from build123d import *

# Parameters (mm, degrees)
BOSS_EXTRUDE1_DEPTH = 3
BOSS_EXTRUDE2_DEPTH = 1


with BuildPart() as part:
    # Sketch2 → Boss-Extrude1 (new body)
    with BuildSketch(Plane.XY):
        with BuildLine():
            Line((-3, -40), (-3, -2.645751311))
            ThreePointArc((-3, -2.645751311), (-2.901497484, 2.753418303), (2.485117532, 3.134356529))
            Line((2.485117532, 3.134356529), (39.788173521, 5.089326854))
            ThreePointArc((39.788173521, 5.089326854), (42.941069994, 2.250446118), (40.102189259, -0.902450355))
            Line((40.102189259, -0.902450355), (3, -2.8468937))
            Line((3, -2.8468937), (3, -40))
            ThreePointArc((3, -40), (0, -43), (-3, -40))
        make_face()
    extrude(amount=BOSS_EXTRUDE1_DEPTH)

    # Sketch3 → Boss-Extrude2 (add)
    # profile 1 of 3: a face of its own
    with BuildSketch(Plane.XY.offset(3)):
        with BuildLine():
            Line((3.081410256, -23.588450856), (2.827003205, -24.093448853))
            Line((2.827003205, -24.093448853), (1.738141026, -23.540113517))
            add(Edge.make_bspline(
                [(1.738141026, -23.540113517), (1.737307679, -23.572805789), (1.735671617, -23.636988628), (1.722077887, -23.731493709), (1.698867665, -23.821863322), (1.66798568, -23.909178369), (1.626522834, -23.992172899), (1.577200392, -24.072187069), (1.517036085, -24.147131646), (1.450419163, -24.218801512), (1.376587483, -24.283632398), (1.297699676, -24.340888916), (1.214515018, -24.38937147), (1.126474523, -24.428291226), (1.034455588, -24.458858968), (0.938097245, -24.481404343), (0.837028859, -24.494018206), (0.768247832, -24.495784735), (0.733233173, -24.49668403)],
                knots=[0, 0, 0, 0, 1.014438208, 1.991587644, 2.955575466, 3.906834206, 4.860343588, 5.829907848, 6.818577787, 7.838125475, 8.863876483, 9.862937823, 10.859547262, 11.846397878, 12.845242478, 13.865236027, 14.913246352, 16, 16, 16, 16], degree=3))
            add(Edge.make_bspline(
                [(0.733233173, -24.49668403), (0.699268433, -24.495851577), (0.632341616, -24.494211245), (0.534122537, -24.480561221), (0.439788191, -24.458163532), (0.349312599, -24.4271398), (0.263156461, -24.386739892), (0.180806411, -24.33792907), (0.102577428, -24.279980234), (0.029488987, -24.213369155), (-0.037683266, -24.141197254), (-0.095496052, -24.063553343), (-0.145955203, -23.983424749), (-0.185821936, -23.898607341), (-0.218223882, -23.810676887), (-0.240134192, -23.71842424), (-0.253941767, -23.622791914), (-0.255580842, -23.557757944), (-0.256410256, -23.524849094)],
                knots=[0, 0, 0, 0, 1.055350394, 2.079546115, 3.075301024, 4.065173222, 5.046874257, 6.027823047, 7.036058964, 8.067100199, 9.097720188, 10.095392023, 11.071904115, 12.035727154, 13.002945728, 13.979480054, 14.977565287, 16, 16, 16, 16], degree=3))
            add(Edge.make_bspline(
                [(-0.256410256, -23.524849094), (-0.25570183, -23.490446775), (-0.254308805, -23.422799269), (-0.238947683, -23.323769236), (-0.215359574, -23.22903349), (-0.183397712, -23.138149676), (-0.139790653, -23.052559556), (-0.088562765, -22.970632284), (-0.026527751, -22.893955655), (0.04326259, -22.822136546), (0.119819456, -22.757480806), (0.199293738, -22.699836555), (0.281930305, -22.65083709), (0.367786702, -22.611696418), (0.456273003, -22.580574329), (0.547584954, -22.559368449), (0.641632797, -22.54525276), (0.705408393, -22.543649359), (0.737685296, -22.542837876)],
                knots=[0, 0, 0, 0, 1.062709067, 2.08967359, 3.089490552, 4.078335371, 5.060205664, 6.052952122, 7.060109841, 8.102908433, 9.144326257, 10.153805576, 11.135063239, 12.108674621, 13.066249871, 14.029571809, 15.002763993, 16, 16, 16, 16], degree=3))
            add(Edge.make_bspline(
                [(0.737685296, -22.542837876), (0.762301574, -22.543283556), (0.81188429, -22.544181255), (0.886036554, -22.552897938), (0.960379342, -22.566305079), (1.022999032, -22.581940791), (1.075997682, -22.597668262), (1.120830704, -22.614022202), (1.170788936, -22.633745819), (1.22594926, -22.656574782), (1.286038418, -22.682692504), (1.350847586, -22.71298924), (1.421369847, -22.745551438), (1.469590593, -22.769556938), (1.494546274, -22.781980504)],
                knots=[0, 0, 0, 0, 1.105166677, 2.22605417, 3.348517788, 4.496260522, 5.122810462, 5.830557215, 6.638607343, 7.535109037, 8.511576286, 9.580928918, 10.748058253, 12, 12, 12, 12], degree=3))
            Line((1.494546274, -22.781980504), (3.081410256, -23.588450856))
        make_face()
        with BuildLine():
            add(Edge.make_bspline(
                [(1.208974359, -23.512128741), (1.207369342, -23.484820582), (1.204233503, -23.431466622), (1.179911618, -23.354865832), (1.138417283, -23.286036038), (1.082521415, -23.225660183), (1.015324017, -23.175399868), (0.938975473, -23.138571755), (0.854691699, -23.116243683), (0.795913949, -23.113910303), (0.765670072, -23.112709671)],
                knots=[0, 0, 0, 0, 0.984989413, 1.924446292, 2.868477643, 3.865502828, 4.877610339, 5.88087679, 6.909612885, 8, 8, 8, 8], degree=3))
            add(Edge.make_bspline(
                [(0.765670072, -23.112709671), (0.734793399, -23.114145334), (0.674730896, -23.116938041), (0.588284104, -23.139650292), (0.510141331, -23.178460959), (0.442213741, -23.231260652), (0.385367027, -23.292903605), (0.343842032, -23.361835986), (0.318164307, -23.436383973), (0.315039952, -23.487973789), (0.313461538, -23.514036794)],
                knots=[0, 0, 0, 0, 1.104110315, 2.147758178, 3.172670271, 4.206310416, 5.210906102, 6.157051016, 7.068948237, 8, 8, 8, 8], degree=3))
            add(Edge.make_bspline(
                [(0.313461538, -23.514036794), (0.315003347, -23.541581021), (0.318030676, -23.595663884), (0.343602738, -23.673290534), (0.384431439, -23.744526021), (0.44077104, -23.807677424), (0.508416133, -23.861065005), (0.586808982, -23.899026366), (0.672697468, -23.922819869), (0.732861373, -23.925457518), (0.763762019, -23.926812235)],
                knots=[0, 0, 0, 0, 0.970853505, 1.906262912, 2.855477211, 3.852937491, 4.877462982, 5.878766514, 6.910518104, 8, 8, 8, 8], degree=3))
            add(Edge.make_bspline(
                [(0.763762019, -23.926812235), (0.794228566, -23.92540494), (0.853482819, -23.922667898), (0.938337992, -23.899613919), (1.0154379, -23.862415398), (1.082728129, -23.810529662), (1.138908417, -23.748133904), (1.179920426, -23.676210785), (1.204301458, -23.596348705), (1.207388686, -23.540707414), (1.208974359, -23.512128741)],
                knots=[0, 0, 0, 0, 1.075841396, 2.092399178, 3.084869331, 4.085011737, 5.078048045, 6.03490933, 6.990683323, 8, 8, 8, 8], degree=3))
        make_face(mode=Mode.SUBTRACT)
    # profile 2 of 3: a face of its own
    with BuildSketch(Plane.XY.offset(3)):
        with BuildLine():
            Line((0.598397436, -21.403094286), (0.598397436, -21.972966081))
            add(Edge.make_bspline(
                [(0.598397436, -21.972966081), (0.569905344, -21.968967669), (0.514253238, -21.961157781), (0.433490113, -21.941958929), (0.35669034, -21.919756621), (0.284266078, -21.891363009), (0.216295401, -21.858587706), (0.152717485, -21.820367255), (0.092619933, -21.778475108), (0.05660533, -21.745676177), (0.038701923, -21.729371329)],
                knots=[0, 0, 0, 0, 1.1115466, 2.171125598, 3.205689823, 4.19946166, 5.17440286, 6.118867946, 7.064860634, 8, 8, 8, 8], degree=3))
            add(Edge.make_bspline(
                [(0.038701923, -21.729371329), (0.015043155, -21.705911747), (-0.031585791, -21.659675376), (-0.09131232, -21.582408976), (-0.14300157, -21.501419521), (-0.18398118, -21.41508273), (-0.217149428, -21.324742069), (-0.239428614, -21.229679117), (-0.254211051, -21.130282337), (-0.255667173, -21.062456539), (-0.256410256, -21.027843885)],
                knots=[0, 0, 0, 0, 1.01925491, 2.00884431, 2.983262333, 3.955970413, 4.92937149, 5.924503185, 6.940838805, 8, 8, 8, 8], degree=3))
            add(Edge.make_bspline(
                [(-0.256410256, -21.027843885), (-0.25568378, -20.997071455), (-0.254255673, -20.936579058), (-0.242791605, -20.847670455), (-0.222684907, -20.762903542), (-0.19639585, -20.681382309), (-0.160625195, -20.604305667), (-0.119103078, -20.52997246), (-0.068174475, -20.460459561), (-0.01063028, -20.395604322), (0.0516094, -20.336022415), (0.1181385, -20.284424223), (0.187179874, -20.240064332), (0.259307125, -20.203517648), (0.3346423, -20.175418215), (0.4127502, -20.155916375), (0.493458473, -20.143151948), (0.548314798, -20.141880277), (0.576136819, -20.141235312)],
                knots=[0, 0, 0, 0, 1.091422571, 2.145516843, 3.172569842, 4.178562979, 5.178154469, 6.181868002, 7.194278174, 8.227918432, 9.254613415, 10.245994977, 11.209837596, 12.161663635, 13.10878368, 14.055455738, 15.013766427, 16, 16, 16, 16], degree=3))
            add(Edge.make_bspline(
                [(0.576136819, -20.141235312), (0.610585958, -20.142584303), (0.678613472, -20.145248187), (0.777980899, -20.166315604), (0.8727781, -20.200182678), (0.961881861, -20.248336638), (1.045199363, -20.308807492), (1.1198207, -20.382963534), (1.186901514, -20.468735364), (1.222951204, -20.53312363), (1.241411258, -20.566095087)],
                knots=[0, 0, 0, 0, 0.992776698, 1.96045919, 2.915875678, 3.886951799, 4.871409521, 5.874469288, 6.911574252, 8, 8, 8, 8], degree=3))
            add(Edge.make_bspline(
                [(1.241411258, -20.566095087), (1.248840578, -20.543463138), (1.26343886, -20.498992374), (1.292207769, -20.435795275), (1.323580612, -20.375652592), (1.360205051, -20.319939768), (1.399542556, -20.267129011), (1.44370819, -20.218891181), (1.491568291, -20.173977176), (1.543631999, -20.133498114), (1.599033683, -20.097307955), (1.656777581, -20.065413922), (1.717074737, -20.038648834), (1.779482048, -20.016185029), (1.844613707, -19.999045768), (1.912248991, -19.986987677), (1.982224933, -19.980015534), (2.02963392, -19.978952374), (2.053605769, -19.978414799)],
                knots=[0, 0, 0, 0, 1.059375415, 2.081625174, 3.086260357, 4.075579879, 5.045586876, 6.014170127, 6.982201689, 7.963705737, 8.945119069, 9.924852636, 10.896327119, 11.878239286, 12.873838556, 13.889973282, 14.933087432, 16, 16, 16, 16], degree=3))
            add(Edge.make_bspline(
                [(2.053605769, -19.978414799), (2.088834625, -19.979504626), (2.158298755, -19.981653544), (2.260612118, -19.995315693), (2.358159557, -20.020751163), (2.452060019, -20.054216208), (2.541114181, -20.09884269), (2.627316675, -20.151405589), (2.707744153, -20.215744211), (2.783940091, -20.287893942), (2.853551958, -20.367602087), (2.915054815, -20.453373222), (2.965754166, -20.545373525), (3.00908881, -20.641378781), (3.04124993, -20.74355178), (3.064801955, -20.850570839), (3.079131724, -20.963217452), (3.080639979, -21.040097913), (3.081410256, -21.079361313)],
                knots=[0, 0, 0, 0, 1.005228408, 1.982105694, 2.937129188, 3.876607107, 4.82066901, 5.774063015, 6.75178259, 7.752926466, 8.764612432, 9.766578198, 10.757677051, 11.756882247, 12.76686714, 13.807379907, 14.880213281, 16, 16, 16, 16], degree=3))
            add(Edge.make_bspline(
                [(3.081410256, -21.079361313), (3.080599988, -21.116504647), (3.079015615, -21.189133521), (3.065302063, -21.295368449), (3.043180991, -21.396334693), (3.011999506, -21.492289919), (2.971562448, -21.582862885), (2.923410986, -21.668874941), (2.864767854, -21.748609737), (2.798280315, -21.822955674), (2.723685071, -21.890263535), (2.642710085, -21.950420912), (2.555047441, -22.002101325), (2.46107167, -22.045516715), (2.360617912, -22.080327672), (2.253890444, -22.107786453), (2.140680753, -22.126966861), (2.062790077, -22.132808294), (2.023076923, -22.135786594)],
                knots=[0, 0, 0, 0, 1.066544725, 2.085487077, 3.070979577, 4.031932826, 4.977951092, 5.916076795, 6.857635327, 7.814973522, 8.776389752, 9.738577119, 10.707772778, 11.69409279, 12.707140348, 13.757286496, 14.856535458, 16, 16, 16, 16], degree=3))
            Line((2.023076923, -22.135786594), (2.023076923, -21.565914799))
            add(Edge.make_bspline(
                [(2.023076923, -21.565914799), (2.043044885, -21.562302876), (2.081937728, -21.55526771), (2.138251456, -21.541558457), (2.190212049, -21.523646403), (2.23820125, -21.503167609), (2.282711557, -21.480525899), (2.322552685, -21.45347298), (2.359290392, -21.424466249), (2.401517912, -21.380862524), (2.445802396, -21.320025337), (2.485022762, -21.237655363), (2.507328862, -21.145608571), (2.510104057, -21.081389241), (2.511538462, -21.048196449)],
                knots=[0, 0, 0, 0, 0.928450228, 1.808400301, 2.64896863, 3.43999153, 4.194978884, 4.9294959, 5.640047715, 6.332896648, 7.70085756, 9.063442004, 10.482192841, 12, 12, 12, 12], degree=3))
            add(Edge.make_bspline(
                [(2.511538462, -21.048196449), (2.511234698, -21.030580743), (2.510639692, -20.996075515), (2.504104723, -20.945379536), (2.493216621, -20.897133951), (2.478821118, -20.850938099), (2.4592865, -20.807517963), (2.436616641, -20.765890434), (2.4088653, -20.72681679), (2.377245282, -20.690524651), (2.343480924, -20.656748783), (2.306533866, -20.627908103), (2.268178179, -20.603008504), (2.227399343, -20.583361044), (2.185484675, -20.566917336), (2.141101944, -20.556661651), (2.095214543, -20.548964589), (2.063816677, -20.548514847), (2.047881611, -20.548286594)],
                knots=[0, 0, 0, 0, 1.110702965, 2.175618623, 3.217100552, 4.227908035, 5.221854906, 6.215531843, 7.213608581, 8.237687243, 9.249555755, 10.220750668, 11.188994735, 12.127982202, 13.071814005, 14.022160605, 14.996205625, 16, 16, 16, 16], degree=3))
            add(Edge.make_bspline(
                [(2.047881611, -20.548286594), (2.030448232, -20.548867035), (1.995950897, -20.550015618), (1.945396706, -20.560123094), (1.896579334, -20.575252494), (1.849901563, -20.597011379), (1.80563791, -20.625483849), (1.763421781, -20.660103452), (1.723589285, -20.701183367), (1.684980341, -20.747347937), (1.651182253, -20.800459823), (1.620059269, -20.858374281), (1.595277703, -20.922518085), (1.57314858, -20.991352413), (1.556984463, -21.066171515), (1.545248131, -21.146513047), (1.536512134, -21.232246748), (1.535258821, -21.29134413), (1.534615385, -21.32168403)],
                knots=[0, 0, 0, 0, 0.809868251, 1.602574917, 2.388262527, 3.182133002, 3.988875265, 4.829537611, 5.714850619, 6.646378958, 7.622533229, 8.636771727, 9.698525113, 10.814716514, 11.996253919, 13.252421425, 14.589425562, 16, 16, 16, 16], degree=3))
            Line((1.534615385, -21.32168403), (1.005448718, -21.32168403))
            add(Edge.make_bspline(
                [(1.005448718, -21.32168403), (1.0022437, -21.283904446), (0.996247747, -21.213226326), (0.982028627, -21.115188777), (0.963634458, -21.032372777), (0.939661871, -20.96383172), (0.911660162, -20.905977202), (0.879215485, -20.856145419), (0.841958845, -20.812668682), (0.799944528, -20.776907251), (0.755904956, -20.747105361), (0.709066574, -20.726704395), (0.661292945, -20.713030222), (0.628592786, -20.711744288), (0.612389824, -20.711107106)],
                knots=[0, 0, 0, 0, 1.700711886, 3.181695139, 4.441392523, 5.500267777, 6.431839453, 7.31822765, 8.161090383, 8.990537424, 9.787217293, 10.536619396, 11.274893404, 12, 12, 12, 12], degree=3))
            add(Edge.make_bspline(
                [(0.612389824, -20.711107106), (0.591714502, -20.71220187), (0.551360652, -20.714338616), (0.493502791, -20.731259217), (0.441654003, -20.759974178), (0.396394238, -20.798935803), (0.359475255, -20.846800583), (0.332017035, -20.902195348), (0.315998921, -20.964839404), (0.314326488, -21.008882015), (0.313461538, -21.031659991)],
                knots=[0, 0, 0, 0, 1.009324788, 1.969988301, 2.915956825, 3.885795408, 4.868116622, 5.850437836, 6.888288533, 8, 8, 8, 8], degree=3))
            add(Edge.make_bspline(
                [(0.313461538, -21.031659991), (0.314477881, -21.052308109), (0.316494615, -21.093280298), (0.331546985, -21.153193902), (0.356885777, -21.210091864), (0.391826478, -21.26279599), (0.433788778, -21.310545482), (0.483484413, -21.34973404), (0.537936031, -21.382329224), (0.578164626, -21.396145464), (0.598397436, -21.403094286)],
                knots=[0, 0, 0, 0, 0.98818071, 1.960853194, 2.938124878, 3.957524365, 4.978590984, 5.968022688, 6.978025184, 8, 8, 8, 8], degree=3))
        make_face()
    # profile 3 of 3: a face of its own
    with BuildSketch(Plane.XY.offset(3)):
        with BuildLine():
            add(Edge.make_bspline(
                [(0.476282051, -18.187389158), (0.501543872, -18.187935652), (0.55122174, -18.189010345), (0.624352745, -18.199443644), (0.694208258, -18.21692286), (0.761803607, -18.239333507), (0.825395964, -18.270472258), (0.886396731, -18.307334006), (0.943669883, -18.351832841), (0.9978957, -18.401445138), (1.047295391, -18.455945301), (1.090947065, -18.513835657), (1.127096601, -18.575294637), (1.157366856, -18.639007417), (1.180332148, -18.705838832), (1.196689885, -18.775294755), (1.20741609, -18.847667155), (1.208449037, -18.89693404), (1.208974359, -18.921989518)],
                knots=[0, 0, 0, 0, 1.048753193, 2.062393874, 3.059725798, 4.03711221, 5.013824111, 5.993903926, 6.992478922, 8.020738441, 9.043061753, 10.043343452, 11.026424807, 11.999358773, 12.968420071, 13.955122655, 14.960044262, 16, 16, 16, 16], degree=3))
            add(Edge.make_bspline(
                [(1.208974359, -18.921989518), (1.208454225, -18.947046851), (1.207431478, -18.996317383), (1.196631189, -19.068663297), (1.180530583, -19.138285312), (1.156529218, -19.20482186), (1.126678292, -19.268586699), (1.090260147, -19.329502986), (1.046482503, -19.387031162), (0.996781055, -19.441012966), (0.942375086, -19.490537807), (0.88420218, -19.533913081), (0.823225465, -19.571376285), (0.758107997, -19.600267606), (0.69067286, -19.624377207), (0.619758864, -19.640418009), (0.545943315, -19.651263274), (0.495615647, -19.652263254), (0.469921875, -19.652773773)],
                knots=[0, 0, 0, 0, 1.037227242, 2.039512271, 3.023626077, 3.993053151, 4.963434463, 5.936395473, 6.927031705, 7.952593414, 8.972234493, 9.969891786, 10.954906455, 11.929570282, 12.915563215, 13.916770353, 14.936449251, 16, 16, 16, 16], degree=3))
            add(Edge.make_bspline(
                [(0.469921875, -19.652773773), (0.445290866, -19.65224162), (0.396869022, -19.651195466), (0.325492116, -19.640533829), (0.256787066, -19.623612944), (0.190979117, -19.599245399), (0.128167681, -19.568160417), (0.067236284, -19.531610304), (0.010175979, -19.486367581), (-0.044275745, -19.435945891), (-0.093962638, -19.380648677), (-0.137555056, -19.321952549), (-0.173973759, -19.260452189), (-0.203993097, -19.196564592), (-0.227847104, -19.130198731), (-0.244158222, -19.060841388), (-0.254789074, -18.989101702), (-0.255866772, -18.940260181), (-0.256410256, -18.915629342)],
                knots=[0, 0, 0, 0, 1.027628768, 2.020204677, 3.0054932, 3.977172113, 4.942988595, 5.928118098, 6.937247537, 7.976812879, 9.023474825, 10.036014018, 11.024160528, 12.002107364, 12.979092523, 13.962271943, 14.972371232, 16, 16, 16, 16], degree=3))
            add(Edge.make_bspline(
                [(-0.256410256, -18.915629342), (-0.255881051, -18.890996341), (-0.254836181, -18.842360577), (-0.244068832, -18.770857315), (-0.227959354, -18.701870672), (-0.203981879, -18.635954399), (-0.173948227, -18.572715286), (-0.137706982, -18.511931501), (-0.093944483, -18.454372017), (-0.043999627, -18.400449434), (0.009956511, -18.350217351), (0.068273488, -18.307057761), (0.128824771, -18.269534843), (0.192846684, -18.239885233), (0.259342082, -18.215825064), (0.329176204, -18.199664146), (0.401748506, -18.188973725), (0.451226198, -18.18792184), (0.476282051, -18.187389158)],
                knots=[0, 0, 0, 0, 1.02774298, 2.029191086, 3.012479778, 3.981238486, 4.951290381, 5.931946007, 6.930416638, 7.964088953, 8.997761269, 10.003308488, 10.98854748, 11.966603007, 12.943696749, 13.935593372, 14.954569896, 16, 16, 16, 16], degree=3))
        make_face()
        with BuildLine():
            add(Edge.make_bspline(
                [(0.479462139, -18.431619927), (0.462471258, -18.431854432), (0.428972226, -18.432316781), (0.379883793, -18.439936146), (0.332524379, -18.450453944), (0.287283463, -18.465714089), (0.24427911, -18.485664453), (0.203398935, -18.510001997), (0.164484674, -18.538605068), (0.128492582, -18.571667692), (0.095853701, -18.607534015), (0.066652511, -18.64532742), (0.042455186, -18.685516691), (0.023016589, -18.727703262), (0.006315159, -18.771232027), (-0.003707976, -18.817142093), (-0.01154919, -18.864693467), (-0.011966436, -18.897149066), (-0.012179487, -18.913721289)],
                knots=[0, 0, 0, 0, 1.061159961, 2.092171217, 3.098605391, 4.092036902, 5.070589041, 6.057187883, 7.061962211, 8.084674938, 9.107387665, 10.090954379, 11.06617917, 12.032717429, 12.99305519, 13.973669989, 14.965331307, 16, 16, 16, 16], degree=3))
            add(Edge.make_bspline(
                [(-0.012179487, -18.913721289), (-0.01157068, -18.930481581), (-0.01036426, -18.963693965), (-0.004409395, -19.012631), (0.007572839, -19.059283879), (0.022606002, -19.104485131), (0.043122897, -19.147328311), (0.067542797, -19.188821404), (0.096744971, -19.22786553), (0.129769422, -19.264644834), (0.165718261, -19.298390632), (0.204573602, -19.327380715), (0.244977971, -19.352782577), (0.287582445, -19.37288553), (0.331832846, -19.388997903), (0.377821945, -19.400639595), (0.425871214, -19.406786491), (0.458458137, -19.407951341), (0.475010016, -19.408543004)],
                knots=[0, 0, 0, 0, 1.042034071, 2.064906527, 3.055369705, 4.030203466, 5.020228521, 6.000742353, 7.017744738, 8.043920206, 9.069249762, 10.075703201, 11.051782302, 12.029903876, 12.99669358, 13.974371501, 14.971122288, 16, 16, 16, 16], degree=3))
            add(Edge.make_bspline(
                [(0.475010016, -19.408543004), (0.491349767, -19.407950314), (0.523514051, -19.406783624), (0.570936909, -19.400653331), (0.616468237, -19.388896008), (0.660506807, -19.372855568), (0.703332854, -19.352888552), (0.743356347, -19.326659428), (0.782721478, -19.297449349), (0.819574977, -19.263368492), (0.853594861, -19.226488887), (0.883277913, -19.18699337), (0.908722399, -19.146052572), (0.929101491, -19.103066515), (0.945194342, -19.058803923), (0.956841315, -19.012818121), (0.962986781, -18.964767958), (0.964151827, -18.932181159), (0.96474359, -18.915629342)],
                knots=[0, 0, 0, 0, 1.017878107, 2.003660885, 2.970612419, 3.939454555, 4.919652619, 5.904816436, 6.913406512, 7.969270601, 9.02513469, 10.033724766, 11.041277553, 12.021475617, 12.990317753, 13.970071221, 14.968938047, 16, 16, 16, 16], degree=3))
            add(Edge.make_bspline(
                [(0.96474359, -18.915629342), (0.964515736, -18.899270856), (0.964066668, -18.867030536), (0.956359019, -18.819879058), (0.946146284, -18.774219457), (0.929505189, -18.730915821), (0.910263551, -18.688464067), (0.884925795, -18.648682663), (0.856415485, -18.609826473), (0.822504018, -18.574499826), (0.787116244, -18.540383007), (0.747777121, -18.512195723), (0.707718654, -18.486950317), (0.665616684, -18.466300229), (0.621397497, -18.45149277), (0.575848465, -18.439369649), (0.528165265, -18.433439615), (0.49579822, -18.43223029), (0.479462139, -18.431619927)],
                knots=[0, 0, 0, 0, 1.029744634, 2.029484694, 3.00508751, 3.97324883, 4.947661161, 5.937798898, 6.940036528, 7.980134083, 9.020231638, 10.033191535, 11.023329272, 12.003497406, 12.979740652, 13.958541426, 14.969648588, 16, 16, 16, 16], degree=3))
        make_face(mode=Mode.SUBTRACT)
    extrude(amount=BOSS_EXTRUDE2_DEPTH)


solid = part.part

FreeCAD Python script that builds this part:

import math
import FreeCAD as App
import Part
import Sketcher

V = App.Vector
Q = App.Units.Quantity

doc = App.newDocument("Part")
params = doc.addObject("Spreadsheet::Sheet", "Params")
for row, (alias, value) in enumerate([
    ("sketch1_radius", "3 mm"),
    ("sketch1_radius2", "4 mm"),
    ("pad1_length", "3 mm"),
    ("pad2_length", "1 mm"),
], start=1):
    params.set(f"A{row}", alias)
    params.set(f"B{row}", "=" + value)
    params.setAlias(f"B{row}", alias)

body = doc.addObject("PartDesign::Body", "Body")

# Sketch on XY plane
sketch1 = body.newObject("Sketcher::SketchObject", "Sketch")
sketch1.AttachmentSupport = (doc.getObject("XY_Plane"), [""])
sketch1.MapMode = "FlatFace"
sketch1.addGeometry([
    Part.LineSegment(V(-3, -2.6, 0), V(-3, -40, 0)),  # 0
    Part.ArcOfCircle(Part.Circle(V(0, -40, 0), V(0, 0, 1), 3), math.radians(180), math.radians(360)),  # 1
    Part.LineSegment(V(3, -40, 0), V(3, -2.8, 0)),  # 2
    Part.LineSegment(V(3, -2.8, 0), V(40.1, -0.9, 0)),  # 3
    Part.ArcOfCircle(Part.Circle(V(39.9, 2.1, 0), V(0, 0, 1), 3), math.radians(-87), math.radians(93)),  # 4
    Part.LineSegment(V(39.8, 5.1, 0), V(2.5, 3.1, 0)),  # 5
    Part.ArcOfCircle(Part.Circle(V(0, 0, 0), V(0, 0, 1), 4), math.radians(52), math.radians(221)),  # 6
], False)
sketch1.addConstraint([
    Sketcher.Constraint("Tangent", 0, 2, 1, 1),
    Sketcher.Constraint("Tangent", 1, 2, 2, 1),
    Sketcher.Constraint("Coincident", 2, 2, 3, 1),
    Sketcher.Constraint("Tangent", 3, 2, 4, 1),
    Sketcher.Constraint("Tangent", 4, 2, 5, 1),
    Sketcher.Constraint("Coincident", 5, 2, 6, 1),
    Sketcher.Constraint("Coincident", 6, 2, 0, 1),
    Sketcher.Constraint("Vertical", 0),
    Sketcher.Constraint("Vertical", 2),
    Sketcher.Constraint("Coincident", 6, 3, -1, 1),
    Sketcher.Constraint("Equal", 1, 4),
    Sketcher.Constraint("PointOnObject", 1, 3, -2),
    Sketcher.Constraint("Parallel", 3, 5),
    Sketcher.Constraint("Radius", 1, Q("3 mm")),
    Sketcher.Constraint("Radius", 6, Q("4 mm")),
    Sketcher.Constraint("Angle", 3, Q("3 deg")),
    Sketcher.Constraint("DistanceY", 1, 3, -1, 1, Q("40 mm")),
    Sketcher.Constraint("Distance", 5, Q("37.354249 mm")),
    Sketcher.Constraint("DistanceY", 2, 1, 2, 2, Q("37.153106 mm")),
])
sketch1.setExpression("Constraints[13]", "Params.sketch1_radius")
sketch1.setExpression("Constraints[14]", "Params.sketch1_radius2")
pad1 = body.newObject("PartDesign::Pad", "Pad")
pad1.Profile = sketch1
pad1.setExpression("Length", "Params.pad1_length")

# Sketch on XY plane
sketch2 = body.newObject("Sketcher::SketchObject", "Sketch001")
sketch2.AttachmentSupport = (doc.getObject("XY_Plane"), [""])
sketch2.MapMode = "FlatFace"
sketch2.AttachmentOffset = App.Placement(V(0, 0, 3), App.Rotation())
sketch2.addGeometry([
    Part.LineSegment(V(2.827003, -24.093449, 0), V(3.08141, -23.588451, 0)),  # 0
    Part.LineSegment(V(3.08141, -23.588451, 0), V(1.494546, -22.781981, 0)),  # 1
    Part.BSplineCurve([V(0.737685, -22.542838, 0), V(0.762302, -22.543284, 0), V(0.811884, -22.544181, 0), V(0.886037, -22.552898, 0), V(0.960379, -22.566305, 0), V(1.022999, -22.581941, 0), V(1.075998, -22.597668, 0), V(1.120831, -22.614022, 0), V(1.170789, -22.633746, 0), V(1.225949, -22.656575, 0), V(1.286038, -22.682693, 0), V(1.350848, -22.712989, 0), V(1.42137, -22.745551, 0), V(1.469591, -22.769557, 0), V(1.494546, -22.781981, 0)], [4, 1, 1, 1, 1, 1, 1, 1, 1, 1, 1, 1, 4], [0, 1.105166677, 2.22605417, 3.348517788, 4.496260522, 5.122810462, 5.830557215, 6.638607343, 7.535109037, 8.511576286, 9.580928918, 10.748058253, 12], False, 3, [1, 1, 1, 1, 1, 1, 1, 1, 1, 1, 1, 1, 1, 1, 1], False),  # 2
    Part.BSplineCurve([V(-0.25641, -23.524849, 0), V(-0.255702, -23.490447, 0), V(-0.254309, -23.422799, 0), V(-0.238948, -23.323769, 0), V(-0.21536, -23.229033, 0), V(-0.183398, -23.13815, 0), V(-0.139791, -23.05256, 0), V(-0.088563, -22.970632, 0), V(-0.026528, -22.893956, 0), V(0.043263, -22.822137, 0), V(0.119819, -22.757481, 0), V(0.199294, -22.699837, 0), V(0.28193, -22.650837, 0), V(0.367787, -22.611696, 0), V(0.456273, -22.580574, 0), V(0.547585, -22.559368, 0), V(0.641633, -22.545253, 0), V(0.705408, -22.543649, 0), V(0.737685, -22.542838, 0)], [4, 1, 1, 1, 1, 1, 1, 1, 1, 1, 1, 1, 1, 1, 1, 1, 4], [0, 1.062709067, 2.08967359, 3.089490552, 4.078335371, 5.060205664, 6.052952122, 7.060109841, 8.102908433, 9.144326257, 10.153805576, 11.135063239, 12.108674621, 13.066249871, 14.029571809, 15.002763993, 16], False, 3, [1, 1, 1, 1, 1, 1, 1, 1, 1, 1, 1, 1, 1, 1, 1, 1, 1, 1, 1], False),  # 3
    Part.BSplineCurve([V(0.733233, -24.496684, 0), V(0.699268, -24.495852, 0), V(0.632342, -24.494211, 0), V(0.534123, -24.480561, 0), V(0.439788, -24.458164, 0), V(0.349313, -24.42714, 0), V(0.263156, -24.38674, 0), V(0.180806, -24.337929, 0), V(0.102577, -24.27998, 0), V(0.029489, -24.213369, 0), V(-0.037683, -24.141197, 0), V(-0.095496, -24.063553, 0), V(-0.145955, -23.983425, 0), V(-0.185822, -23.898607, 0), V(-0.218224, -23.810677, 0), V(-0.240134, -23.718424, 0), V(-0.253942, -23.622792, 0), V(-0.255581, -23.557758, 0), V(-0.25641, -23.524849, 0)], [4, 1, 1, 1, 1, 1, 1, 1, 1, 1, 1, 1, 1, 1, 1, 1, 4], [0, 1.055350394, 2.079546115, 3.075301024, 4.065173222, 5.046874257, 6.027823047, 7.036058964, 8.067100199, 9.097720188, 10.095392023, 11.071904115, 12.035727154, 13.002945728, 13.979480054, 14.977565287, 16], False, 3, [1, 1, 1, 1, 1, 1, 1, 1, 1, 1, 1, 1, 1, 1, 1, 1, 1, 1, 1], False),  # 4
    Part.BSplineCurve([V(1.738141, -23.540114, 0), V(1.737308, -23.572806, 0), V(1.735672, -23.636989, 0), V(1.722078, -23.731494, 0), V(1.698868, -23.821863, 0), V(1.667986, -23.909178, 0), V(1.626523, -23.992173, 0), V(1.5772, -24.072187, 0), V(1.517036, -24.147132, 0), V(1.450419, -24.218802, 0), V(1.376587, -24.283632, 0), V(1.2977, -24.340889, 0), V(1.214515, -24.389371, 0), V(1.126475, -24.428291, 0), V(1.034456, -24.458859, 0), V(0.938097, -24.481404, 0), V(0.837029, -24.494018, 0), V(0.768248, -24.495785, 0), V(0.733233, -24.496684, 0)], [4, 1, 1, 1, 1, 1, 1, 1, 1, 1, 1, 1, 1, 1, 1, 1, 4], [0, 1.014438208, 1.991587644, 2.955575466, 3.906834206, 4.860343588, 5.829907848, 6.818577787, 7.838125475, 8.863876483, 9.862937823, 10.859547262, 11.846397878, 12.845242478, 13.865236027, 14.913246352, 16], False, 3, [1, 1, 1, 1, 1, 1, 1, 1, 1, 1, 1, 1, 1, 1, 1, 1, 1, 1, 1], False),  # 5
    Part.LineSegment(V(1.738141, -23.540114, 0), V(2.827003, -24.093449, 0)),  # 6
    Part.BSplineCurve([V(0.763762, -23.926812, 0), V(0.794229, -23.925405, 0), V(0.853483, -23.922668, 0), V(0.938338, -23.899614, 0), V(1.015438, -23.862415, 0), V(1.082728, -23.81053, 0), V(1.138908, -23.748134, 0), V(1.17992, -23.676211, 0), V(1.204301, -23.596349, 0), V(1.207389, -23.540707, 0), V(1.208974, -23.512129, 0)], [4, 1, 1, 1, 1, 1, 1, 1, 4], [0, 1.075841396, 2.092399178, 3.084869331, 4.085011737, 5.078048045, 6.03490933, 6.990683323, 8], False, 3, [1, 1, 1, 1, 1, 1, 1, 1, 1, 1, 1], False),  # 7
    Part.BSplineCurve([V(0.313462, -23.514037, 0), V(0.315003, -23.541581, 0), V(0.318031, -23.595664, 0), V(0.343603, -23.673291, 0), V(0.384431, -23.744526, 0), V(0.440771, -23.807677, 0), V(0.508416, -23.861065, 0), V(0.586809, -23.899026, 0), V(0.672697, -23.92282, 0), V(0.732861, -23.925458, 0), V(0.763762, -23.926812, 0)], [4, 1, 1, 1, 1, 1, 1, 1, 4], [0, 0.970853505, 1.906262912, 2.855477211, 3.852937491, 4.877462982, 5.878766514, 6.910518104, 8], False, 3, [1, 1, 1, 1, 1, 1, 1, 1, 1, 1, 1], False),  # 8
    Part.BSplineCurve([V(0.76567, -23.11271, 0), V(0.734793, -23.114145, 0), V(0.674731, -23.116938, 0), V(0.588284, -23.13965, 0), V(0.510141, -23.178461, 0), V(0.442214, -23.231261, 0), V(0.385367, -23.292904, 0), V(0.343842, -23.361836, 0), V(0.318164, -23.436384, 0), V(0.31504, -23.487974, 0), V(0.313462, -23.514037, 0)], [4, 1, 1, 1, 1, 1, 1, 1, 4], [0, 1.104110315, 2.147758178, 3.172670271, 4.206310416, 5.210906102, 6.157051016, 7.068948237, 8], False, 3, [1, 1, 1, 1, 1, 1, 1, 1, 1, 1, 1], False),  # 9
    Part.BSplineCurve([V(1.208974, -23.512129, 0), V(1.207369, -23.484821, 0), V(1.204234, -23.431467, 0), V(1.179912, -23.354866, 0), V(1.138417, -23.286036, 0), V(1.082521, -23.22566, 0), V(1.015324, -23.1754, 0), V(0.938975, -23.138572, 0), V(0.854692, -23.116244, 0), V(0.795914, -23.11391, 0), V(0.76567, -23.11271, 0)], [4, 1, 1, 1, 1, 1, 1, 1, 4], [0, 0.984989413, 1.924446292, 2.868477643, 3.865502828, 4.877610339, 5.88087679, 6.909612885, 8], False, 3, [1, 1, 1, 1, 1, 1, 1, 1, 1, 1, 1], False),  # 10
    Part.LineSegment(V(0.598397, -21.972966, 0), V(0.598397, -21.403094, 0)),  # 11
    Part.BSplineCurve([V(0.313462, -21.03166, 0), V(0.314478, -21.052308, 0), V(0.316495, -21.09328, 0), V(0.331547, -21.153194, 0), V(0.356886, -21.210092, 0), V(0.391826, -21.262796, 0), V(0.433789, -21.310545, 0), V(0.483484, -21.349734, 0), V(0.537936, -21.382329, 0), V(0.578165, -21.396145, 0), V(0.598397, -21.403094, 0)], [4, 1, 1, 1, 1, 1, 1, 1, 4], [0, 0.98818071, 1.960853194, 2.938124878, 3.957524365, 4.978590984, 5.968022688, 6.978025184, 8], False, 3, [1, 1, 1, 1, 1, 1, 1, 1, 1, 1, 1], False),  # 12
    Part.BSplineCurve([V(0.61239, -20.711107, 0), V(0.591715, -20.712202, 0), V(0.551361, -20.714339, 0), V(0.493503, -20.731259, 0), V(0.441654, -20.759974, 0), V(0.396394, -20.798936, 0), V(0.359475, -20.846801, 0), V(0.332017, -20.902195, 0), V(0.315999, -20.964839, 0), V(0.314326, -21.008882, 0), V(0.313462, -21.03166, 0)], [4, 1, 1, 1, 1, 1, 1, 1, 4], [0, 1.009324788, 1.969988301, 2.915956825, 3.885795408, 4.868116622, 5.850437836, 6.888288533, 8], False, 3, [1, 1, 1, 1, 1, 1, 1, 1, 1, 1, 1], False),  # 13
    Part.BSplineCurve([V(1.005449, -21.321684, 0), V(1.002244, -21.283904, 0), V(0.996248, -21.213226, 0), V(0.982029, -21.115189, 0), V(0.963634, -21.032373, 0), V(0.939662, -20.963832, 0), V(0.91166, -20.905977, 0), V(0.879215, -20.856145, 0), V(0.841959, -20.812669, 0), V(0.799945, -20.776907, 0), V(0.755905, -20.747105, 0), V(0.709067, -20.726704, 0), V(0.661293, -20.71303, 0), V(0.628593, -20.711744, 0), V(0.61239, -20.711107, 0)], [4, 1, 1, 1, 1, 1, 1, 1, 1, 1, 1, 1, 4], [0, 1.700711886, 3.181695139, 4.441392523, 5.500267777, 6.431839453, 7.31822765, 8.161090383, 8.990537424, 9.787217293, 10.536619396, 11.274893404, 12], False, 3, [1, 1, 1, 1, 1, 1, 1, 1, 1, 1, 1, 1, 1, 1, 1], False),  # 14
    Part.LineSegment(V(1.005449, -21.321684, 0), V(1.534615, -21.321684, 0)),  # 15
    Part.BSplineCurve([V(2.047882, -20.548287, 0), V(2.030448, -20.548867, 0), V(1.995951, -20.550016, 0), V(1.945397, -20.560123, 0), V(1.896579, -20.575252, 0), V(1.849902, -20.597011, 0), V(1.805638, -20.625484, 0), V(1.763422, -20.660103, 0), V(1.723589, -20.701183, 0), V(1.68498, -20.747348, 0), V(1.651182, -20.80046, 0), V(1.620059, -20.858374, 0), V(1.595278, -20.922518, 0), V(1.573149, -20.991352, 0), V(1.556984, -21.066172, 0), V(1.545248, -21.146513, 0), V(1.536512, -21.232247, 0), V(1.535259, -21.291344, 0), V(1.534615, -21.321684, 0)], [4, 1, 1, 1, 1, 1, 1, 1, 1, 1, 1, 1, 1, 1, 1, 1, 4], [0, 0.809868251, 1.602574917, 2.388262527, 3.182133002, 3.988875265, 4.829537611, 5.714850619, 6.646378958, 7.622533229, 8.636771727, 9.698525113, 10.814716514, 11.996253919, 13.252421425, 14.589425562, 16], False, 3, [1, 1, 1, 1, 1, 1, 1, 1, 1, 1, 1, 1, 1, 1, 1, 1, 1, 1, 1], False),  # 16
    Part.BSplineCurve([V(2.511538, -21.048196, 0), V(2.511235, -21.030581, 0), V(2.51064, -20.996076, 0), V(2.504105, -20.94538, 0), V(2.493217, -20.897134, 0), V(2.478821, -20.850938, 0), V(2.459287, -20.807518, 0), V(2.436617, -20.76589, 0), V(2.408865, -20.726817, 0), V(2.377245, -20.690525, 0), V(2.343481, -20.656749, 0), V(2.306534, -20.627908, 0), V(2.268178, -20.603009, 0), V(2.227399, -20.583361, 0), V(2.185485, -20.566917, 0), V(2.141102, -20.556662, 0), V(2.095215, -20.548965, 0), V(2.063817, -20.548515, 0), V(2.047882, -20.548287, 0)], [4, 1, 1, 1, 1, 1, 1, 1, 1, 1, 1, 1, 1, 1, 1, 1, 4], [0, 1.110702965, 2.175618623, 3.217100552, 4.227908035, 5.221854906, 6.215531843, 7.213608581, 8.237687243, 9.249555755, 10.220750668, 11.188994735, 12.127982202, 13.071814005, 14.022160605, 14.996205625, 16], False, 3, [1, 1, 1, 1, 1, 1, 1, 1, 1, 1, 1, 1, 1, 1, 1, 1, 1, 1, 1], False),  # 17
    Part.BSplineCurve([V(2.023077, -21.565915, 0), V(2.043045, -21.562303, 0), V(2.081938, -21.555268, 0), V(2.138251, -21.541558, 0), V(2.190212, -21.523646, 0), V(2.238201, -21.503168, 0), V(2.282712, -21.480526, 0), V(2.322553, -21.453473, 0), V(2.35929, -21.424466, 0), V(2.401518, -21.380863, 0), V(2.445802, -21.320025, 0), V(2.485023, -21.237655, 0), V(2.507329, -21.145609, 0), V(2.510104, -21.081389, 0), V(2.511538, -21.048196, 0)], [4, 1, 1, 1, 1, 1, 1, 1, 1, 1, 1, 1, 4], [0, 0.928450228, 1.808400301, 2.64896863, 3.43999153, 4.194978884, 4.9294959, 5.640047715, 6.332896648, 7.70085756, 9.063442004, 10.482192841, 12], False, 3, [1, 1, 1, 1, 1, 1, 1, 1, 1, 1, 1, 1, 1, 1, 1], False),  # 18
    Part.LineSegment(V(2.023077, -21.565915, 0), V(2.023077, -22.135787, 0)),  # 19
    Part.BSplineCurve([V(3.08141, -21.079361, 0), V(3.0806, -21.116505, 0), V(3.079016, -21.189134, 0), V(3.065302, -21.295368, 0), V(3.043181, -21.396335, 0), V(3.012, -21.49229, 0), V(2.971562, -21.582863, 0), V(2.923411, -21.668875, 0), V(2.864768, -21.74861, 0), V(2.79828, -21.822956, 0), V(2.723685, -21.890264, 0), V(2.64271, -21.950421, 0), V(2.555047, -22.002101, 0), V(2.461072, -22.045517, 0), V(2.360618, -22.080328, 0), V(2.25389, -22.107786, 0), V(2.140681, -22.126967, 0), V(2.06279, -22.132808, 0), V(2.023077, -22.135787, 0)], [4, 1, 1, 1, 1, 1, 1, 1, 1, 1, 1, 1, 1, 1, 1, 1, 4], [0, 1.066544725, 2.085487077, 3.070979577, 4.031932826, 4.977951092, 5.916076795, 6.857635327, 7.814973522, 8.776389752, 9.738577119, 10.707772778, 11.69409279, 12.707140348, 13.757286496, 14.856535458, 16], False, 3, [1, 1, 1, 1, 1, 1, 1, 1, 1, 1, 1, 1, 1, 1, 1, 1, 1, 1, 1], False),  # 20
    Part.BSplineCurve([V(2.053606, -19.978415, 0), V(2.088835, -19.979505, 0), V(2.158299, -19.981654, 0), V(2.260612, -19.995316, 0), V(2.35816, -20.020751, 0), V(2.45206, -20.054216, 0), V(2.541114, -20.098843, 0), V(2.627317, -20.151406, 0), V(2.707744, -20.215744, 0), V(2.78394, -20.287894, 0), V(2.853552, -20.367602, 0), V(2.915055, -20.453373, 0), V(2.965754, -20.545374, 0), V(3.009089, -20.641379, 0), V(3.04125, -20.743552, 0), V(3.064802, -20.850571, 0), V(3.079132, -20.963217, 0), V(3.08064, -21.040098, 0), V(3.08141, -21.079361, 0)], [4, 1, 1, 1, 1, 1, 1, 1, 1, 1, 1, 1, 1, 1, 1, 1, 4], [0, 1.005228408, 1.982105694, 2.937129188, 3.876607107, 4.82066901, 5.774063015, 6.75178259, 7.752926466, 8.764612432, 9.766578198, 10.757677051, 11.756882247, 12.76686714, 13.807379907, 14.880213281, 16], False, 3, [1, 1, 1, 1, 1, 1, 1, 1, 1, 1, 1, 1, 1, 1, 1, 1, 1, 1, 1], False),  # 21
    Part.BSplineCurve([V(1.241411, -20.566095, 0), V(1.248841, -20.543463, 0), V(1.263439, -20.498992, 0), V(1.292208, -20.435795, 0), V(1.323581, -20.375653, 0), V(1.360205, -20.31994, 0), V(1.399543, -20.267129, 0), V(1.443708, -20.218891, 0), V(1.491568, -20.173977, 0), V(1.543632, -20.133498, 0), V(1.599034, -20.097308, 0), V(1.656778, -20.065414, 0), V(1.717075, -20.038649, 0), V(1.779482, -20.016185, 0), V(1.844614, -19.999046, 0), V(1.912249, -19.986988, 0), V(1.982225, -19.980016, 0), V(2.029634, -19.978952, 0), V(2.053606, -19.978415, 0)], [4, 1, 1, 1, 1, 1, 1, 1, 1, 1, 1, 1, 1, 1, 1, 1, 4], [0, 1.059375415, 2.081625174, 3.086260357, 4.075579879, 5.045586876, 6.014170127, 6.982201689, 7.963705737, 8.945119069, 9.924852636, 10.896327119, 11.878239286, 12.873838556, 13.889973282, 14.933087432, 16], False, 3, [1, 1, 1, 1, 1, 1, 1, 1, 1, 1, 1, 1, 1, 1, 1, 1, 1, 1, 1], False),  # 22
    Part.BSplineCurve([V(0.576137, -20.141235, 0), V(0.610586, -20.142584, 0), V(0.678613, -20.145248, 0), V(0.777981, -20.166316, 0), V(0.872778, -20.200183, 0), V(0.961882, -20.248337, 0), V(1.045199, -20.308807, 0), V(1.119821, -20.382964, 0), V(1.186902, -20.468735, 0), V(1.222951, -20.533124, 0), V(1.241411, -20.566095, 0)], [4, 1, 1, 1, 1, 1, 1, 1, 4], [0, 0.992776698, 1.96045919, 2.915875678, 3.886951799, 4.871409521, 5.874469288, 6.911574252, 8], False, 3, [1, 1, 1, 1, 1, 1, 1, 1, 1, 1, 1], False),  # 23
    Part.BSplineCurve([V(-0.25641, -21.027844, 0), V(-0.255684, -20.997071, 0), V(-0.254256, -20.936579, 0), V(-0.242792, -20.84767, 0), V(-0.222685, -20.762904, 0), V(-0.196396, -20.681382, 0), V(-0.160625, -20.604306, 0), V(-0.119103, -20.529972, 0), V(-0.068174, -20.46046, 0), V(-0.01063, -20.395604, 0), V(0.051609, -20.336022, 0), V(0.118138, -20.284424, 0), V(0.18718, -20.240064, 0), V(0.259307, -20.203518, 0), V(0.334642, -20.175418, 0), V(0.41275, -20.155916, 0), V(0.493458, -20.143152, 0), V(0.548315, -20.14188, 0), V(0.576137, -20.141235, 0)], [4, 1, 1, 1, 1, 1, 1, 1, 1, 1, 1, 1, 1, 1, 1, 1, 4], [0, 1.091422571, 2.145516843, 3.172569842, 4.178562979, 5.178154469, 6.181868002, 7.194278174, 8.227918432, 9.254613415, 10.245994977, 11.209837596, 12.161663635, 13.10878368, 14.055455738, 15.013766427, 16], False, 3, [1, 1, 1, 1, 1, 1, 1, 1, 1, 1, 1, 1, 1, 1, 1, 1, 1, 1, 1], False),  # 24
    Part.BSplineCurve([V(0.038702, -21.729371, 0), V(0.015043, -21.705912, 0), V(-0.031586, -21.659675, 0), V(-0.091312, -21.582409, 0), V(-0.143002, -21.50142, 0), V(-0.183981, -21.415083, 0), V(-0.217149, -21.324742, 0), V(-0.239429, -21.229679, 0), V(-0.254211, -21.130282, 0), V(-0.255667, -21.062457, 0), V(-0.25641, -21.027844, 0)], [4, 1, 1, 1, 1, 1, 1, 1, 4], [0, 1.01925491, 2.00884431, 2.983262333, 3.955970413, 4.92937149, 5.924503185, 6.940838805, 8], False, 3, [1, 1, 1, 1, 1, 1, 1, 1, 1, 1, 1], False),  # 25
    Part.BSplineCurve([V(0.598397, -21.972966, 0), V(0.569905, -21.968968, 0), V(0.514253, -21.961158, 0), V(0.43349, -21.941959, 0), V(0.35669, -21.919757, 0), V(0.284266, -21.891363, 0), V(0.216295, -21.858588, 0), V(0.152717, -21.820367, 0), V(0.09262, -21.778475, 0), V(0.056605, -21.745676, 0), V(0.038702, -21.729371, 0)], [4, 1, 1, 1, 1, 1, 1, 1, 4], [0, 1.1115466, 2.171125598, 3.205689823, 4.19946166, 5.17440286, 6.118867946, 7.064860634, 8], False, 3, [1, 1, 1, 1, 1, 1, 1, 1, 1, 1, 1], False),  # 26
    Part.BSplineCurve([V(0.476282, -18.187389, 0), V(0.501544, -18.187936, 0), V(0.551222, -18.18901, 0), V(0.624353, -18.199444, 0), V(0.694208, -18.216923, 0), V(0.761804, -18.239334, 0), V(0.825396, -18.270472, 0), V(0.886397, -18.307334, 0), V(0.94367, -18.351833, 0), V(0.997896, -18.401445, 0), V(1.047295, -18.455945, 0), V(1.090947, -18.513836, 0), V(1.127097, -18.575295, 0), V(1.157367, -18.639007, 0), V(1.180332, -18.705839, 0), V(1.19669, -18.775295, 0), V(1.207416, -18.847667, 0), V(1.208449, -18.896934, 0), V(1.208974, -18.92199, 0)], [4, 1, 1, 1, 1, 1, 1, 1, 1, 1, 1, 1, 1, 1, 1, 1, 4], [0, 1.048753193, 2.062393874, 3.059725798, 4.03711221, 5.013824111, 5.993903926, 6.992478922, 8.020738441, 9.043061753, 10.043343452, 11.026424807, 11.999358773, 12.968420071, 13.955122655, 14.960044262, 16], False, 3, [1, 1, 1, 1, 1, 1, 1, 1, 1, 1, 1, 1, 1, 1, 1, 1, 1, 1, 1], False),  # 27
    Part.BSplineCurve([V(-0.25641, -18.915629, 0), V(-0.255881, -18.890996, 0), V(-0.254836, -18.842361, 0), V(-0.244069, -18.770857, 0), V(-0.227959, -18.701871, 0), V(-0.203982, -18.635954, 0), V(-0.173948, -18.572715, 0), V(-0.137707, -18.511932, 0), V(-0.093944, -18.454372, 0), V(-0.044, -18.400449, 0), V(0.009957, -18.350217, 0), V(0.068273, -18.307058, 0), V(0.128825, -18.269535, 0), V(0.192847, -18.239885, 0), V(0.259342, -18.215825, 0), V(0.329176, -18.199664, 0), V(0.401749, -18.188974, 0), V(0.451226, -18.187922, 0), V(0.476282, -18.187389, 0)], [4, 1, 1, 1, 1, 1, 1, 1, 1, 1, 1, 1, 1, 1, 1, 1, 4], [0, 1.02774298, 2.029191086, 3.012479778, 3.981238486, 4.951290381, 5.931946007, 6.930416638, 7.964088953, 8.997761269, 10.003308488, 10.98854748, 11.966603007, 12.943696749, 13.935593372, 14.954569896, 16], False, 3, [1, 1, 1, 1, 1, 1, 1, 1, 1, 1, 1, 1, 1, 1, 1, 1, 1, 1, 1], False),  # 28
    Part.BSplineCurve([V(0.469922, -19.652774, 0), V(0.445291, -19.652242, 0), V(0.396869, -19.651195, 0), V(0.325492, -19.640534, 0), V(0.256787, -19.623613, 0), V(0.190979, -19.599245, 0), V(0.128168, -19.56816, 0), V(0.067236, -19.53161, 0), V(0.010176, -19.486368, 0), V(-0.044276, -19.435946, 0), V(-0.093963, -19.380649, 0), V(-0.137555, -19.321953, 0), V(-0.173974, -19.260452, 0), V(-0.203993, -19.196565, 0), V(-0.227847, -19.130199, 0), V(-0.244158, -19.060841, 0), V(-0.254789, -18.989102, 0), V(-0.255867, -18.94026, 0), V(-0.25641, -18.915629, 0)], [4, 1, 1, 1, 1, 1, 1, 1, 1, 1, 1, 1, 1, 1, 1, 1, 4], [0, 1.027628768, 2.020204677, 3.0054932, 3.977172113, 4.942988595, 5.928118098, 6.937247537, 7.976812879, 9.023474825, 10.036014018, 11.024160528, 12.002107364, 12.979092523, 13.962271943, 14.972371232, 16], False, 3, [1, 1, 1, 1, 1, 1, 1, 1, 1, 1, 1, 1, 1, 1, 1, 1, 1, 1, 1], False),  # 29
    Part.BSplineCurve([V(1.208974, -18.92199, 0), V(1.208454, -18.947047, 0), V(1.207431, -18.996317, 0), V(1.196631, -19.068663, 0), V(1.180531, -19.138285, 0), V(1.156529, -19.204822, 0), V(1.126678, -19.268587, 0), V(1.09026, -19.329503, 0), V(1.046483, -19.387031, 0), V(0.996781, -19.441013, 0), V(0.942375, -19.490538, 0), V(0.884202, -19.533913, 0), V(0.823225, -19.571376, 0), V(0.758108, -19.600268, 0), V(0.690673, -19.624377, 0), V(0.619759, -19.640418, 0), V(0.545943, -19.651263, 0), V(0.495616, -19.652263, 0), V(0.469922, -19.652774, 0)], [4, 1, 1, 1, 1, 1, 1, 1, 1, 1, 1, 1, 1, 1, 1, 1, 4], [0, 1.037227242, 2.039512271, 3.023626077, 3.993053151, 4.963434463, 5.936395473, 6.927031705, 7.952593414, 8.972234493, 9.969891786, 10.954906455, 11.929570282, 12.915563215, 13.916770353, 14.936449251, 16], False, 3, [1, 1, 1, 1, 1, 1, 1, 1, 1, 1, 1, 1, 1, 1, 1, 1, 1, 1, 1], False),  # 30
    Part.BSplineCurve([V(0.964744, -18.915629, 0), V(0.964516, -18.899271, 0), V(0.964067, -18.867031, 0), V(0.956359, -18.819879, 0), V(0.946146, -18.774219, 0), V(0.929505, -18.730916, 0), V(0.910264, -18.688464, 0), V(0.884926, -18.648683, 0), V(0.856415, -18.609826, 0), V(0.822504, -18.5745, 0), V(0.787116, -18.540383, 0), V(0.747777, -18.512196, 0), V(0.707719, -18.48695, 0), V(0.665617, -18.4663, 0), V(0.621397, -18.451493, 0), V(0.575848, -18.43937, 0), V(0.528165, -18.43344, 0), V(0.495798, -18.43223, 0), V(0.479462, -18.43162, 0)], [4, 1, 1, 1, 1, 1, 1, 1, 1, 1, 1, 1, 1, 1, 1, 1, 4], [0, 1.029744634, 2.029484694, 3.00508751, 3.97324883, 4.947661161, 5.937798898, 6.940036528, 7.980134083, 9.020231638, 10.033191535, 11.023329272, 12.003497406, 12.979740652, 13.958541426, 14.969648588, 16], False, 3, [1, 1, 1, 1, 1, 1, 1, 1, 1, 1, 1, 1, 1, 1, 1, 1, 1, 1, 1], False),  # 31
    Part.BSplineCurve([V(0.47501, -19.408543, 0), V(0.49135, -19.40795, 0), V(0.523514, -19.406784, 0), V(0.570937, -19.400653, 0), V(0.616468, -19.388896, 0), V(0.660507, -19.372856, 0), V(0.703333, -19.352889, 0), V(0.743356, -19.326659, 0), V(0.782721, -19.297449, 0), V(0.819575, -19.263368, 0), V(0.853595, -19.226489, 0), V(0.883278, -19.186993, 0), V(0.908722, -19.146053, 0), V(0.929101, -19.103067, 0), V(0.945194, -19.058804, 0), V(0.956841, -19.012818, 0), V(0.962987, -18.964768, 0), V(0.964152, -18.932181, 0), V(0.964744, -18.915629, 0)], [4, 1, 1, 1, 1, 1, 1, 1, 1, 1, 1, 1, 1, 1, 1, 1, 4], [0, 1.017878107, 2.003660885, 2.970612419, 3.939454555, 4.919652619, 5.904816436, 6.913406512, 7.969270601, 9.02513469, 10.033724766, 11.041277553, 12.021475617, 12.990317753, 13.970071221, 14.968938047, 16], False, 3, [1, 1, 1, 1, 1, 1, 1, 1, 1, 1, 1, 1, 1, 1, 1, 1, 1, 1, 1], False),  # 32
    Part.BSplineCurve([V(-0.012179, -18.913721, 0), V(-0.011571, -18.930482, 0), V(-0.010364, -18.963694, 0), V(-0.004409, -19.012631, 0), V(0.007573, -19.059284, 0), V(0.022606, -19.104485, 0), V(0.043123, -19.147328, 0), V(0.067543, -19.188821, 0), V(0.096745, -19.227866, 0), V(0.129769, -19.264645, 0), V(0.165718, -19.298391, 0), V(0.204574, -19.327381, 0), V(0.244978, -19.352783, 0), V(0.287582, -19.372886, 0), V(0.331833, -19.388998, 0), V(0.377822, -19.40064, 0), V(0.425871, -19.406786, 0), V(0.458458, -19.407951, 0), V(0.47501, -19.408543, 0)], [4, 1, 1, 1, 1, 1, 1, 1, 1, 1, 1, 1, 1, 1, 1, 1, 4], [0, 1.042034071, 2.064906527, 3.055369705, 4.030203466, 5.020228521, 6.000742353, 7.017744738, 8.043920206, 9.069249762, 10.075703201, 11.051782302, 12.029903876, 12.99669358, 13.974371501, 14.971122288, 16], False, 3, [1, 1, 1, 1, 1, 1, 1, 1, 1, 1, 1, 1, 1, 1, 1, 1, 1, 1, 1], False),  # 33
    Part.BSplineCurve([V(0.479462, -18.43162, 0), V(0.462471, -18.431854, 0), V(0.428972, -18.432317, 0), V(0.379884, -18.439936, 0), V(0.332524, -18.450454, 0), V(0.287283, -18.465714, 0), V(0.244279, -18.485664, 0), V(0.203399, -18.510002, 0), V(0.164485, -18.538605, 0), V(0.128493, -18.571668, 0), V(0.095854, -18.607534, 0), V(0.066653, -18.645327, 0), V(0.042455, -18.685517, 0), V(0.023017, -18.727703, 0), V(0.006315, -18.771232, 0), V(-0.003708, -18.817142, 0), V(-0.011549, -18.864693, 0), V(-0.011966, -18.897149, 0), V(-0.012179, -18.913721, 0)], [4, 1, 1, 1, 1, 1, 1, 1, 1, 1, 1, 1, 1, 1, 1, 1, 4], [0, 1.061159961, 2.092171217, 3.098605391, 4.092036902, 5.070589041, 6.057187883, 7.061962211, 8.084674938, 9.107387665, 10.090954379, 11.06617917, 12.032717429, 12.99305519, 13.973669989, 14.965331307, 16], False, 3, [1, 1, 1, 1, 1, 1, 1, 1, 1, 1, 1, 1, 1, 1, 1, 1, 1, 1, 1], False),  # 34
], False)
sketch2.addConstraint([
    Sketcher.Constraint("Block", 2),
    Sketcher.Constraint("Block", 3),
    Sketcher.Constraint("Block", 4),
    Sketcher.Constraint("Block", 5),
    Sketcher.Constraint("Block", 7),
    Sketcher.Constraint("Block", 8),
    Sketcher.Constraint("Block", 9),
    Sketcher.Constraint("Block", 10),
    Sketcher.Constraint("Block", 12),
    Sketcher.Constraint("Block", 13),
    Sketcher.Constraint("Block", 14),
    Sketcher.Constraint("Block", 16),
    Sketcher.Constraint("Block", 17),
    Sketcher.Constraint("Block", 18),
    Sketcher.Constraint("Block", 20),
    Sketcher.Constraint("Block", 21),
    Sketcher.Constraint("Block", 22),
    Sketcher.Constraint("Block", 23),
    Sketcher.Constraint("Block", 24),
    Sketcher.Constraint("Block", 25),
    Sketcher.Constraint("Block", 26),
    Sketcher.Constraint("Block", 27),
    Sketcher.Constraint("Block", 28),
    Sketcher.Constraint("Block", 29),
    Sketcher.Constraint("Block", 30),
    Sketcher.Constraint("Block", 31),
    Sketcher.Constraint("Block", 32),
    Sketcher.Constraint("Block", 33),
    Sketcher.Constraint("Block", 34),
    Sketcher.Constraint("Coincident", 0, 2, 1, 1),
    Sketcher.Constraint("Coincident", 1, 2, 2, 2),
    Sketcher.Constraint("Coincident", 5, 1, 6, 1),
    Sketcher.Constraint("Coincident", 6, 2, 0, 1),
    Sketcher.Constraint("Coincident", 11, 2, 12, 2),
    Sketcher.Constraint("Coincident", 14, 1, 15, 1),
    Sketcher.Constraint("Coincident", 15, 2, 16, 2),
    Sketcher.Constraint("Coincident", 18, 1, 19, 1),
    Sketcher.Constraint("Coincident", 19, 2, 20, 2),
    Sketcher.Constraint("Coincident", 26, 1, 11, 1),
    Sketcher.Constraint("Distance", 0, Q("0.565461 mm")),
    Sketcher.Constraint("DistanceX", -1, 1, 0, 2, Q("3.08141 mm")),
    Sketcher.Constraint("DistanceY", 0, 2, -1, 1, Q("23.588451 mm")),
    Sketcher.Constraint("DistanceY", 6, 2, -1, 1, Q("24.093449 mm")),
])
pad2 = body.newObject("PartDesign::Pad", "Pad001")
pad2.Profile = sketch2
pad2.setExpression("Length", "Params.pad2_length")

doc.recompute()
